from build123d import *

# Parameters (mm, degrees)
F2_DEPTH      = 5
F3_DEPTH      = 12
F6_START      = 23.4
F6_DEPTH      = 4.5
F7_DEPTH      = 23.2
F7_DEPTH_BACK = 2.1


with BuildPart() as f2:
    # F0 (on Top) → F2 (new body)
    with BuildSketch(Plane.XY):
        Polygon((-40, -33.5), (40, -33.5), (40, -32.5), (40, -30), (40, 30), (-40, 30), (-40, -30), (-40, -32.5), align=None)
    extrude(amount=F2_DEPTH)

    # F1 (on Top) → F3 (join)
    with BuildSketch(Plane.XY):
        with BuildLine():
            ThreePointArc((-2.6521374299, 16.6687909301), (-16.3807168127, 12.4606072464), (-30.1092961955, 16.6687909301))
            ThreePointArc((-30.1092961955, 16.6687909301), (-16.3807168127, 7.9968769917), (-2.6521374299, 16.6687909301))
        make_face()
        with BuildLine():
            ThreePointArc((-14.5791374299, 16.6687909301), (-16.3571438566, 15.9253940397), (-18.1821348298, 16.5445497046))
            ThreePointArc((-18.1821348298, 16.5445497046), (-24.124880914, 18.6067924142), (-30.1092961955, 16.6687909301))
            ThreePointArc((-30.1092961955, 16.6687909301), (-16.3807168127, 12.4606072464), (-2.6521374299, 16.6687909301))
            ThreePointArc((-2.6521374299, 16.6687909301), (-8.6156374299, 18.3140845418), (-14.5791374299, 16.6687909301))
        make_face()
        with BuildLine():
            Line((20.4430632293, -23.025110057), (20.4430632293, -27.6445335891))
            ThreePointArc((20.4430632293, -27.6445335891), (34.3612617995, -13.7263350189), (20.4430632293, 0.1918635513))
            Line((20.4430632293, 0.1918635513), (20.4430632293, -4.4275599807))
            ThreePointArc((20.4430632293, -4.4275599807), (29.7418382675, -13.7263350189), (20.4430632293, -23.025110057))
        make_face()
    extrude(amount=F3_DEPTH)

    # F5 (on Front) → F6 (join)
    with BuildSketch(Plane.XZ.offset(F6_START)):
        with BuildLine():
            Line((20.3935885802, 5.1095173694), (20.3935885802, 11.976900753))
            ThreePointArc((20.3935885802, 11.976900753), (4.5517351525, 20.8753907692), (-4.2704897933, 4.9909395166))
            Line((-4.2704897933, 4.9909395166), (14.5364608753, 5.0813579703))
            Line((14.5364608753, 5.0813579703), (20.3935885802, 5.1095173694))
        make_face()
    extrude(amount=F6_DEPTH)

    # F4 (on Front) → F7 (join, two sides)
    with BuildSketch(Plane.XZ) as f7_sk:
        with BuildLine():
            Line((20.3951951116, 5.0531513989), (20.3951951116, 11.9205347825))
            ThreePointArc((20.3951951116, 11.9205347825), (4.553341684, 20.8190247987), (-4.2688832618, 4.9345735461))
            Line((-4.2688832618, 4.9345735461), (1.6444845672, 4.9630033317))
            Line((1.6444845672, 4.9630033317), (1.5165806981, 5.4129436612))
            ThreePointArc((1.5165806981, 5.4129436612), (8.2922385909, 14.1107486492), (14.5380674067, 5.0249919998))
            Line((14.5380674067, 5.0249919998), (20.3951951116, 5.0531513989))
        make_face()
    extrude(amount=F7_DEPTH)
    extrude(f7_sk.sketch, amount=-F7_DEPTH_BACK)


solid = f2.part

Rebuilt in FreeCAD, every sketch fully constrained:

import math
import FreeCAD as App
import Part
import Sketcher
Q = App.Units.Quantity


def add_polygon(sketch, points):
    """Adds a closed chain of lines whose ends are joined by coincident constraints."""
    first, n = sketch.GeometryCount, len(points)
    for a, b in zip(points, points[1:] + points[:1]):
        sketch.addGeometry(Part.LineSegment(App.Vector(*a, 0), App.Vector(*b, 0)), False)
    for i in range(n):
        sketch.addConstraint(Sketcher.Constraint("Coincident", first + i, 2, first + (i + 1) % n, 1))

doc = App.newDocument("Part")
body = doc.addObject("PartDesign::Body", "Body")

# Sketch on XY plane
sketch1 = body.newObject("Sketcher::SketchObject", "Sketch")
sketch1.AttachmentSupport = (doc.getObject("XY_Plane"), [""])
sketch1.MapMode = "FlatFace"
add_polygon(sketch1, [(-40, -34), (40, -34), (40, 30), (-40, 30)])  # lines 0-3
sketch1.addConstraint([
    Sketcher.Constraint("Horizontal", 0),
    Sketcher.Constraint("Vertical", 1),
    Sketcher.Constraint("Horizontal", 2),
    Sketcher.Constraint("Vertical", 3),
    Sketcher.Constraint("DistanceX", 0, 1, 0, 2, Q("80 mm")),
    Sketcher.Constraint("DistanceY", 1, 1, 1, 2, Q("63.5 mm")),
    Sketcher.Constraint("DistanceX", -1, 1, 0, 2, Q("40 mm")),
    Sketcher.Constraint("DistanceY", -1, 1, 1, 2, Q("30 mm")),
])
pad1 = body.newObject("PartDesign::Pad", "Pad")
pad1.Profile = sketch1
pad1.Length = 5

# Sketch on XY plane
sketch2 = body.newObject("Sketcher::SketchObject", "Sketch001")
sketch2.AttachmentSupport = (doc.getObject("XY_Plane"), [""])
sketch2.MapMode = "FlatFace"
sketch2.addGeometry([
    Part.ArcOfCircle(Part.Circle(App.Vector(-16.4, 23.2, 0), App.Vector(0, 0, 1), 15.2), math.radians(-155), math.radians(-25)),  # 0
    Part.ArcOfCircle(Part.Circle(App.Vector(-8.6, 6.7, 0), App.Vector(0, 0, 1), 11.6), math.radians(59), math.radians(121)),  # 1
    Part.ArcOfCircle(Part.Circle(App.Vector(-16.5, 18.6, 0), App.Vector(0, 0, 1), 2.7), math.radians(-129), math.radians(-47)),  # 2
    Part.ArcOfCircle(Part.Circle(App.Vector(-24.2, 8.7, 0), App.Vector(0, 0, 1), 9.9), math.radians(52), math.radians(126)),  # 3
    Part.LineSegment(App.Vector(20.4, -23, 0), App.Vector(20.4, -27.6, 0)),  # 4
    Part.ArcOfCircle(Part.Circle(App.Vector(20.4, -13.7, 0), App.Vector(0, 0, 1), 13.9), math.radians(-90), math.radians(90)),  # 5
    Part.LineSegment(App.Vector(20.4, 0.2, 0), App.Vector(20.4, -4.4, 0)),  # 6
    Part.ArcOfCircle(Part.Circle(App.Vector(20.4, -13.7, 0), App.Vector(0, 0, 1), 9.3), math.radians(-90), math.radians(90)),  # 7
], False)
sketch2.addConstraint([
    Sketcher.Constraint("Coincident", 0, 2, 1, 1),
    Sketcher.Constraint("Coincident", 1, 2, 2, 2),
    Sketcher.Constraint("Coincident", 2, 1, 3, 1),
    Sketcher.Constraint("Coincident", 3, 2, 0, 1),
    Sketcher.Constraint("Coincident", 4, 2, 5, 1),
    Sketcher.Constraint("Coincident", 5, 2, 6, 1),
    Sketcher.Constraint("Coincident", 6, 2, 7, 2),
    Sketcher.Constraint("Coincident", 7, 1, 4, 1),
    Sketcher.Constraint("Vertical", 4),
    Sketcher.Constraint("Vertical", 6),
    Sketcher.Constraint("Coincident", 7, 3, 5, 3),
    Sketcher.Constraint("Horizontal", 0, 2, 1, 2),
    Sketcher.Constraint("Horizontal", 1, 2, 3, 2),
    Sketcher.Constraint("Vertical", 7, 3, 4, 2),
    Sketcher.Constraint("Vertical", 4, 2, 5, 2),
    Sketcher.Constraint("Radius", 5, Q("13.918199 mm")),
    Sketcher.Constraint("Radius", 0, Q("15.202871 mm")),
    Sketcher.Constraint("Radius", 1, Q("11.630241 mm")),
    Sketcher.Constraint("Radius", 3, Q("9.891129 mm")),
    Sketcher.Constraint("Radius", 2, Q("2.724108 mm")),
    Sketcher.Constraint("Radius", 7, Q("9.298775 mm")),
    Sketcher.Constraint("DistanceX", 1, 2, 0, 2, Q("11.927 mm")),
    Sketcher.Constraint("DistanceY", -1, 1, 3, 3, Q("8.7162 mm")),
    Sketcher.Constraint("DistanceX", 1, 3, 5, 3, Q("29.058701 mm")),
    Sketcher.Constraint("DistanceY", 2, 1, 0, 3, Q("6.655199 mm")),
    Sketcher.Constraint("DistanceY", -1, 1, 0, 3, Q("23.199748 mm")),
    Sketcher.Constraint("DistanceY", -1, 1, 0, 2, Q("16.668791 mm")),
    Sketcher.Constraint("DistanceY", 6, 2, -1, 1, Q("4.42756 mm")),
    Sketcher.Constraint("DistanceX", 0, 3, -1, 1, Q("16.380717 mm")),
])
pad2 = body.newObject("PartDesign::Pad", "Pad001")
pad2.Profile = sketch2
pad2.Length = 12

# Sketch on XZ plane
sketch3 = body.newObject("Sketcher::SketchObject", "Sketch002")
sketch3.AttachmentSupport = (doc.getObject("XZ_Plane"), [""])
sketch3.MapMode = "FlatFace"
sketch3.AttachmentOffset = App.Placement(App.Vector(0, 0, 23.4), App.Rotation())
sketch3.addGeometry([
    Part.LineSegment(App.Vector(20, 5, 0), App.Vector(20, 12, 0)),
    Part.ArcOfCircle(Part.Circle(App.Vector(8, 9, 0), App.Vector(0, 0, 1), 13), math.radians(16), math.radians(196)),
    Part.LineSegment(App.Vector(-4, 5, 0), App.Vector(15, 5, 0)),
    Part.LineSegment(App.Vector(15, 5, 0), App.Vector(20, 5, 0)),
], False)
sketch3.addConstraint([
    Sketcher.Constraint("Coincident", 0, 2, 1, 1),
    Sketcher.Constraint("Coincident", 1, 2, 2, 1),
    Sketcher.Constraint("Coincident", 2, 2, 3, 1),
    Sketcher.Constraint("Coincident", 3, 2, 0, 1),
    Sketcher.Constraint("Vertical", 0),
    Sketcher.Constraint("Parallel", 2, 3),
    Sketcher.Constraint("Radius", 1, Q("12.817328 mm")),
    Sketcher.Constraint("DistanceY", -1, 1, 0, 2, Q("11.976901 mm")),
    Sketcher.Constraint("Distance", 2, Q("18.807168 mm")),
    Sketcher.Constraint("DistanceY", 0, 1, 0, 2, Q("6.867383 mm")),
    Sketcher.Constraint("DistanceY", -1, 1, 1, 3, Q("8.543209 mm")),
    Sketcher.Constraint("DistanceX", -1, 1, 0, 2, Q("20.393589 mm")),
    Sketcher.Constraint("DistanceX", 1, 2, -1, 1, Q("4.27049 mm")),
])
pad3 = body.newObject("PartDesign::Pad", "Pad002")
pad3.Profile = sketch3
pad3.Length = 4.5

# Sketch on XZ plane
sketch4 = body.newObject("Sketcher::SketchObject", "Sketch003")
sketch4.AttachmentSupport = (doc.getObject("XZ_Plane"), [""])
sketch4.MapMode = "FlatFace"
sketch4.addGeometry([
    Part.LineSegment(App.Vector(20.4, 5.05, 0), App.Vector(20.4, 11.92, 0)),  # 0
    Part.ArcOfCircle(Part.Circle(App.Vector(8.05, 8.49, 0), App.Vector(0, 0, 1), 12.82), math.radians(16), math.radians(196)),  # 1
    Part.LineSegment(App.Vector(-4.27, 4.93, 0), App.Vector(1.64, 4.96, 0)),  # 2
    Part.LineSegment(App.Vector(1.64, 4.96, 0), App.Vector(1.52, 5.41, 0)),  # 3
    Part.ArcOfCircle(Part.Circle(App.Vector(8.09, 7.28, 0), App.Vector(0, 0, 1), 6.83), math.radians(-19), math.radians(196)),  # 4
    Part.LineSegment(App.Vector(14.54, 5.02, 0), App.Vector(20.4, 5.05, 0)),  # 5
], False)
sketch4.addConstraint([
    Sketcher.Constraint("Coincident", 0, 2, 1, 1),
    Sketcher.Constraint("Coincident", 1, 2, 2, 1),
    Sketcher.Constraint("Coincident", 2, 2, 3, 1),
    Sketcher.Constraint("Tangent", 3, 2, 4, 2),
    Sketcher.Constraint("Coincident", 4, 1, 5, 1),
    Sketcher.Constraint("Coincident", 5, 2, 0, 1),
    Sketcher.Constraint("Vertical", 0),
    Sketcher.Constraint("Parallel", 2, 5),
    Sketcher.Constraint("Radius", 1, Q("12.817328 mm")),
    Sketcher.Constraint("Radius", 4, Q("6.83257 mm")),
    Sketcher.Constraint("DistanceY", 3, 2, 1, 3, Q("3.073899 mm")),
    Sketcher.Constraint("DistanceY", 0, 1, 0, 2, Q("6.867383 mm")),
    Sketcher.Constraint("DistanceY", -1, 1, 4, 3, Q("7.281209 mm")),
    Sketcher.Constraint("DistanceX", -1, 1, 3, 2, Q("1.516581 mm")),
    Sketcher.Constraint("DistanceY", -1, 1, 4, 1, Q("5.024992 mm")),
    Sketcher.Constraint("DistanceY", -1, 1, 5, 2, Q("5.053151 mm")),
    Sketcher.Constraint("DistanceY", 1, 3, 0, 2, Q("3.433692 mm")),
    Sketcher.Constraint("DistanceX", 4, 3, 0, 2, Q("12.30643 mm")),
    Sketcher.Constraint("DistanceX", 1, 2, 4, 3, Q("12.357648 mm")),
])
pad4 = body.newObject("PartDesign::Pad", "Pad003")
pad4.Profile = sketch4
pad4.Type = "TwoLengths"
pad4.Length = 23.2
pad4.Length2 = 2.1

doc.recompute()
